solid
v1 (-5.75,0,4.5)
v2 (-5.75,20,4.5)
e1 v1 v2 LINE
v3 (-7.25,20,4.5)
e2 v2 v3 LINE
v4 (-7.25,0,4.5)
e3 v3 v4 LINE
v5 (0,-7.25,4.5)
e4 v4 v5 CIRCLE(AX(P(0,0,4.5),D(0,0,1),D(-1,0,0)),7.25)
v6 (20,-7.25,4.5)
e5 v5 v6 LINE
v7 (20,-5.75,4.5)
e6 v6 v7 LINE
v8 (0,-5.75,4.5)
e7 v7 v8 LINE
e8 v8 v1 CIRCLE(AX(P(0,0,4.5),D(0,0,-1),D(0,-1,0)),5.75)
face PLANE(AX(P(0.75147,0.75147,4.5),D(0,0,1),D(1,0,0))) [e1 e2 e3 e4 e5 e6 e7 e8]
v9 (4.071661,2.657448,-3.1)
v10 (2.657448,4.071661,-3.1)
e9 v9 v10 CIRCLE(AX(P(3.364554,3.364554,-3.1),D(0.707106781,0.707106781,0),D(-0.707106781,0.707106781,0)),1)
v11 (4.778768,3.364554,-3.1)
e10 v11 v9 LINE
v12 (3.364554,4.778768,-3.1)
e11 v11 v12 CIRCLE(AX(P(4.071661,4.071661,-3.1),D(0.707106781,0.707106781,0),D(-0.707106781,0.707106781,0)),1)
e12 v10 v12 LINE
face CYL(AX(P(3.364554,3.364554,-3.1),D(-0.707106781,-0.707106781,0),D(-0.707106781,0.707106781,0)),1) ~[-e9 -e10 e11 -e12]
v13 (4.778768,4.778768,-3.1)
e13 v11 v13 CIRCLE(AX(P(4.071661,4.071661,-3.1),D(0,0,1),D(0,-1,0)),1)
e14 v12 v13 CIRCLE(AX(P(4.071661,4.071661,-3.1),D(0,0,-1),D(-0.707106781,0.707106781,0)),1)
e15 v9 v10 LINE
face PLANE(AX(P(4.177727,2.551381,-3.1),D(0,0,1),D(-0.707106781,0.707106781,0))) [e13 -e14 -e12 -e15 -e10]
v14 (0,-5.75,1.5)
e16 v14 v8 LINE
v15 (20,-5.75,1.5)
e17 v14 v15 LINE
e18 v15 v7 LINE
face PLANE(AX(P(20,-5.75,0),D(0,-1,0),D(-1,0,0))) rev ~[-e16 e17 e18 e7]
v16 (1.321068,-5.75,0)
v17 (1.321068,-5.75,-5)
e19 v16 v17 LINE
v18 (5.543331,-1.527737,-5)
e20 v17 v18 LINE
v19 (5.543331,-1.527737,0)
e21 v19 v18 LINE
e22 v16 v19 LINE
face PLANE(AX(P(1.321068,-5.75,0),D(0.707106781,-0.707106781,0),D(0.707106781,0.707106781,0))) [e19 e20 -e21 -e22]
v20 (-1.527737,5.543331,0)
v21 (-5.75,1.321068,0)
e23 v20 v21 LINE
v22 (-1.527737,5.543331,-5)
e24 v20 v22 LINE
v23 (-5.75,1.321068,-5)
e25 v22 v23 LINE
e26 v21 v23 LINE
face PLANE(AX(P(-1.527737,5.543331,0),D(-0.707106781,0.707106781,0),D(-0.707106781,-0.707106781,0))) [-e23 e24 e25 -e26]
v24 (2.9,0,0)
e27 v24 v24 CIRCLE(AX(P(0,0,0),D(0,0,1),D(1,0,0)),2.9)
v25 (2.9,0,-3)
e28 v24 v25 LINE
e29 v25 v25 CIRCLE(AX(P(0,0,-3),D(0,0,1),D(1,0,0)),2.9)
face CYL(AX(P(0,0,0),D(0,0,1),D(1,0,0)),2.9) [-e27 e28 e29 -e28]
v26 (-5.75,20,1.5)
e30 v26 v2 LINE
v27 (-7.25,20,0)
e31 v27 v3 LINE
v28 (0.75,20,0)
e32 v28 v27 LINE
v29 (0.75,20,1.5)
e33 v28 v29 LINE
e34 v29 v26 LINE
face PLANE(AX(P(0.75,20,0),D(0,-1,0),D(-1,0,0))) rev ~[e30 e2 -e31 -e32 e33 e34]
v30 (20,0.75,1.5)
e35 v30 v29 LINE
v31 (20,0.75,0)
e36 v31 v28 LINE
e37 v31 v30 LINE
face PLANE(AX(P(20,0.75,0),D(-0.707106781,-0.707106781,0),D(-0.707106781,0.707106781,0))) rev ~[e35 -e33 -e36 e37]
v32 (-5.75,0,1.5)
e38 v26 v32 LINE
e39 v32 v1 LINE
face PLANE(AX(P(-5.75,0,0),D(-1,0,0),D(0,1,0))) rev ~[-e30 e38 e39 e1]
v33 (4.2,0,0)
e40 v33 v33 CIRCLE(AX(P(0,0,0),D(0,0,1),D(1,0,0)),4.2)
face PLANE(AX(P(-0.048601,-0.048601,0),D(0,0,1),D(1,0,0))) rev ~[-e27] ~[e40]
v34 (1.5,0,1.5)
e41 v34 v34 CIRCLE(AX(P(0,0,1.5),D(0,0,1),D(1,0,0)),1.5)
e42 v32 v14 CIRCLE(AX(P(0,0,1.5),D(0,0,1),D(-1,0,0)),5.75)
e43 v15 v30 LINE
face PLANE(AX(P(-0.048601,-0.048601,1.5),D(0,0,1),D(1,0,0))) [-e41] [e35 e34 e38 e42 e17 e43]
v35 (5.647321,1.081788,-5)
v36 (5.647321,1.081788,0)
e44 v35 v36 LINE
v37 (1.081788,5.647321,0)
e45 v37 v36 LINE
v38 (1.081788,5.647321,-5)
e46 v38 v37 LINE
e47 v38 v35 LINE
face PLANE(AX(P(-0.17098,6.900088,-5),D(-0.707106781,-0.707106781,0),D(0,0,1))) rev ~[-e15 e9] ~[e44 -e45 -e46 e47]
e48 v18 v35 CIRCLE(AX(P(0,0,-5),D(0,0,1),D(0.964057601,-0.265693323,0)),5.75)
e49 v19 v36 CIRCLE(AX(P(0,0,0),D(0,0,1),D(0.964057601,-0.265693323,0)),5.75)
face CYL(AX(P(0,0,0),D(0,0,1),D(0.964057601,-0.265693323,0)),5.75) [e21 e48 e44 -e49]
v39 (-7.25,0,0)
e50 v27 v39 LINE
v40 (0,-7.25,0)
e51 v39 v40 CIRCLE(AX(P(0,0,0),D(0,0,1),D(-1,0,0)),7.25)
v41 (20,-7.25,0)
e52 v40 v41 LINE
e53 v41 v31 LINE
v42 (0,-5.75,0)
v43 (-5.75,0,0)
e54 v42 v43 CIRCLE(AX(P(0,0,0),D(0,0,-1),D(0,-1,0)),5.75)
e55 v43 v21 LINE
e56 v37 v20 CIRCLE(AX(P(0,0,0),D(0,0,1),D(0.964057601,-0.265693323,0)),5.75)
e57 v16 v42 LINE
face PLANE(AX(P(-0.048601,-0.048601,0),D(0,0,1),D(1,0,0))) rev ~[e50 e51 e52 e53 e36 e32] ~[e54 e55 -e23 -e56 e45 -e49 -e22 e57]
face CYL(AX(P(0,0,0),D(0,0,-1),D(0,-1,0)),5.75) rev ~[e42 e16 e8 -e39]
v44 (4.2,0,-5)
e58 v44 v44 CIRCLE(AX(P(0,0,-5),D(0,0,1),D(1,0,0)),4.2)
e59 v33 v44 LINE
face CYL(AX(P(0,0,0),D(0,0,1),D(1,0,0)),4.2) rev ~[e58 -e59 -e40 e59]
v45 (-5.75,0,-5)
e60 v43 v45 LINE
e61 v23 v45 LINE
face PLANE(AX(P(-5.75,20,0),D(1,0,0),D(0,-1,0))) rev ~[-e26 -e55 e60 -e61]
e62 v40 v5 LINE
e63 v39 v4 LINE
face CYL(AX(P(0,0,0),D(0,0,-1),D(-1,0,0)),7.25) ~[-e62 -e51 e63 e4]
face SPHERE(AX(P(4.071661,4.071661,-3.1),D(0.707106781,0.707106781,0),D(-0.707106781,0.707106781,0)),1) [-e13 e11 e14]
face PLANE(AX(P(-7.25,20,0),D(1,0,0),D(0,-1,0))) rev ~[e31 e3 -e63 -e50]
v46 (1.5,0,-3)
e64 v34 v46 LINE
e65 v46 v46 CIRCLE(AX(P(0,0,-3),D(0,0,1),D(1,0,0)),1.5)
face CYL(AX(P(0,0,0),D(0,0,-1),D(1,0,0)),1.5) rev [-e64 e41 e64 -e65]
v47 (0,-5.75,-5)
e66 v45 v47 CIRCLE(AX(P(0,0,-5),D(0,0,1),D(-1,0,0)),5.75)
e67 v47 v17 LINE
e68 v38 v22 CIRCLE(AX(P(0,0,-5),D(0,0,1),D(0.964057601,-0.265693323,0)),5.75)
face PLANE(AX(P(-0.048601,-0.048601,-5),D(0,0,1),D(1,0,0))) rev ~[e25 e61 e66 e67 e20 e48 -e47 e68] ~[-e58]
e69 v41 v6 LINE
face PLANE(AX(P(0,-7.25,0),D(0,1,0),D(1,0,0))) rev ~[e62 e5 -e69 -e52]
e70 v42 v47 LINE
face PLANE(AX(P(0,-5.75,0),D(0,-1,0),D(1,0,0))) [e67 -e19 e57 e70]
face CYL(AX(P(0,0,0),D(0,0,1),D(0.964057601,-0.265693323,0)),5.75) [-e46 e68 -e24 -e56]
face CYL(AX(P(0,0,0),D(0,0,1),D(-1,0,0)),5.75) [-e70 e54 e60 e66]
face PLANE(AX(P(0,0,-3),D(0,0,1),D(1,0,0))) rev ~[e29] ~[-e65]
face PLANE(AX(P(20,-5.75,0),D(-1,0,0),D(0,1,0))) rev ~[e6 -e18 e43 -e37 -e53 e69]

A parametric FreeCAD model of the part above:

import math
import FreeCAD as App
import Part
import Sketcher
from FreeCAD import Vector
Q = App.Units.Quantity


def edges_at(feature, points):
    """Names of the edges that pass closest to the given points."""
    edges = feature.Shape.Edges
    near = lambda p: min(range(len(edges)), key=lambda i: edges[i].distToShape(Part.Vertex(*p))[0])
    return sorted({f"Edge{near(p) + 1}" for p in points})

doc = App.newDocument("Part")
params = doc.addObject("Spreadsheet::Sheet", "Params")
for row, (alias, value) in enumerate([
    ("sketch1_diameter", "3 mm"),
    ("sketch1_width", "20 mm"),
    ("sketch1_radius", "5.75 mm"),
    ("sketch1_width2", "6.5 mm"),
    ("pad1_length", "1.5 mm"),
    ("sketch2_diameter", "8.4 mm"),
    ("sketch2_radius", "5.75 mm"),
    ("pad2_length", "5 mm"),
    ("sketch3_diameter", "3 mm"),
    ("sketch3_diameter2", "5.8 mm"),
    ("pad3_length", "3 mm"),
    ("sketch4_width", "20 mm"),
    ("sketch4_radius", "5.75 mm"),
    ("sketch4_radius2", "7.25 mm"),
    ("pad4_length", "4.5 mm"),
    ("sketch5_width", "1 mm"),
    ("sketch5_height", "5 mm"),
    ("pocket1_length", "10 mm"),
    ("sketch6_diameter", "2 mm"),
    ("pad5_length", "2 mm"),
    ("fillet_radius", "1 mm"),
    ("pocket2_length", "3 mm"),
], start=1):
    params.set(f"A{row}", alias)
    params.set(f"B{row}", "=" + value)
    params.setAlias(f"B{row}", alias)

body = doc.addObject("PartDesign::Body", "Body")

# Sketch on XY plane
sketch1 = body.newObject("Sketcher::SketchObject", "Sketch")
sketch1.AttachmentSupport = (doc.getObject("XY_Plane"), [""])
sketch1.MapMode = "FlatFace"
sketch1.addGeometry(Part.LineSegment(Vector(0, -5.8, 0), Vector(20, -5.8, 0)), False)
sketch1.addGeometry(Part.LineSegment(Vector(20, -5.8, 0), Vector(20, 0.8, 0)), False)
sketch1.addGeometry(Part.LineSegment(Vector(20, 0.8, 0), Vector(0.8, 20, 0)), False)
sketch1.addGeometry(Part.LineSegment(Vector(0.8, 20, 0), Vector(-5.8, 20, 0)), False)
sketch1.addGeometry(Part.LineSegment(Vector(-5.8, 20, 0), Vector(-5.8, 0, 0)), False)
sketch1.addGeometry(Part.ArcOfCircle(Part.Circle(Vector(0, 0, 0), Vector(0, 0, 1), 5.8), math.radians(180), math.radians(270)), False)
sketch1.addGeometry(Part.Circle(Vector(0, 0, 0), Vector(0, 0, 1), 1.5), False)
sketch1.addConstraint(Sketcher.Constraint("Coincident", 0, 2, 1, 1))
sketch1.addConstraint(Sketcher.Constraint("Coincident", 1, 2, 2, 1))
sketch1.addConstraint(Sketcher.Constraint("Coincident", 2, 2, 3, 1))
sketch1.addConstraint(Sketcher.Constraint("Coincident", 3, 2, 4, 1))
sketch1.addConstraint(Sketcher.Constraint("Tangent", 4, 2, 5, 1))
sketch1.addConstraint(Sketcher.Constraint("Tangent", 5, 2, 0, 1))
sketch1.addConstraint(Sketcher.Constraint("Horizontal", 0))
sketch1.addConstraint(Sketcher.Constraint("Vertical", 1))
sketch1.addConstraint(Sketcher.Constraint("Horizontal", 3))
sketch1.addConstraint(Sketcher.Constraint("Vertical", 4))
sketch1.addConstraint(Sketcher.Constraint("Coincident", 5, 3, -1, 1))
sketch1.addConstraint(Sketcher.Constraint("Coincident", 6, 3, -1, 1))
sketch1.addConstraint(Sketcher.Constraint("Equal", 3, 1))
sketch1.addConstraint(Sketcher.Constraint("Equal", 0, 4))
sketch1.addConstraint(Sketcher.Constraint("Diameter", 6, Q("3 mm")))
sketch1.addConstraint(Sketcher.Constraint("DistanceX", 0, 1, 0, 2, Q("20 mm")))
sketch1.addConstraint(Sketcher.Constraint("Radius", 5, Q("5.75 mm")))
sketch1.addConstraint(Sketcher.Constraint("DistanceX", 3, 2, 3, 1, Q("6.5 mm")))
sketch1.setExpression("Constraints[14]", "Params.sketch1_diameter")
sketch1.setExpression("Constraints[15]", "Params.sketch1_width")
sketch1.setExpression("Constraints[16]", "Params.sketch1_radius")
sketch1.setExpression("Constraints[17]", "Params.sketch1_width2")
pad1 = body.newObject("PartDesign::Pad", "Pad")
pad1.Profile = sketch1
pad1.setExpression("Length", "Params.pad1_length")

# Sketch on XY plane
sketch2 = body.newObject("Sketcher::SketchObject", "Sketch001")
sketch2.AttachmentSupport = (doc.getObject("XY_Plane"), [""])
sketch2.MapMode = "FlatFace"
sketch2.addGeometry(Part.LineSegment(Vector(1.3, -5.8, 0), Vector(5.5, -1.5, 0)), False)
sketch2.addGeometry(Part.ArcOfCircle(Part.Circle(Vector(0, 0, 0), Vector(0, 0, 1), 5.8), math.radians(-15), math.radians(105)), False)
sketch2.addGeometry(Part.LineSegment(Vector(-1.5, 5.5, 0), Vector(-5.8, 1.3, 0)), False)
sketch2.addGeometry(Part.LineSegment(Vector(-5.8, 1.3, 0), Vector(-5.8, 0, 0)), False)
sketch2.addGeometry(Part.ArcOfCircle(Part.Circle(Vector(0, 0, 0), Vector(0, 0, 1), 5.8), math.radians(180), math.radians(270)), False)
sketch2.addGeometry(Part.LineSegment(Vector(0, -5.8, 0), Vector(1.3, -5.8, 0)), False)
sketch2.addGeometry(Part.Circle(Vector(0, 0, 0), Vector(0, 0, 1), 4.2), False)
sketch2.addConstraint(Sketcher.Constraint("Coincident", 0, 2, 1, 1))
sketch2.addConstraint(Sketcher.Constraint("Coincident", 1, 2, 2, 1))
sketch2.addConstraint(Sketcher.Constraint("Coincident", 2, 2, 3, 1))
sketch2.addConstraint(Sketcher.Constraint("Tangent", 3, 2, 4, 1))
sketch2.addConstraint(Sketcher.Constraint("Tangent", 4, 2, 5, 1))
sketch2.addConstraint(Sketcher.Constraint("Coincident", 5, 2, 0, 1))
sketch2.addConstraint(Sketcher.Constraint("Vertical", 3))
sketch2.addConstraint(Sketcher.Constraint("Horizontal", 5))
sketch2.addConstraint(Sketcher.Constraint("Coincident", 1, 3, -1, 1))
sketch2.addConstraint(Sketcher.Constraint("Coincident", 4, 3, -1, 1))
sketch2.addConstraint(Sketcher.Constraint("Coincident", 6, 3, -1, 1))
sketch2.addConstraint(Sketcher.Constraint("Equal", 1, 4))
sketch2.addConstraint(Sketcher.Constraint("Parallel", 0, 2))
sketch2.addConstraint(Sketcher.Constraint("Equal", 5, 3))
sketch2.addConstraint(Sketcher.Constraint("Equal", 0, 2))
sketch2.addConstraint(Sketcher.Constraint("Diameter", 6, Q("8.4 mm")))
sketch2.addConstraint(Sketcher.Constraint("Radius", 1, Q("5.75 mm")))
sketch2.addConstraint(Sketcher.Constraint("DistanceX", 5, 1, 5, 2, Q("1.321068 mm")))
sketch2.setExpression("Constraints[15]", "Params.sketch2_diameter")
sketch2.setExpression("Constraints[16]", "Params.sketch2_radius")
pad2 = body.newObject("PartDesign::Pad", "Pad001")
pad2.Profile = sketch2
pad2.setExpression("Length", "Params.pad2_length")
pad2.Reversed = True

# Sketch on XY plane
sketch3 = body.newObject("Sketcher::SketchObject", "Sketch002")
sketch3.AttachmentSupport = (doc.getObject("XY_Plane"), [""])
sketch3.MapMode = "FlatFace"
sketch3.addGeometry(Part.Circle(Vector(0, 0, 0), Vector(0, 0, 1), 2.9), False)
sketch3.addGeometry(Part.Circle(Vector(0, 0, 0), Vector(0, 0, 1), 1.5), False)
sketch3.addConstraint(Sketcher.Constraint("Coincident", 0, 3, -1, 1))
sketch3.addConstraint(Sketcher.Constraint("Coincident", 1, 3, -1, 1))
sketch3.addConstraint(Sketcher.Constraint("Diameter", 1, Q("3 mm")))
sketch3.addConstraint(Sketcher.Constraint("Diameter", 0, Q("5.8 mm")))
sketch3.setExpression("Constraints[2]", "Params.sketch3_diameter")
sketch3.setExpression("Constraints[3]", "Params.sketch3_diameter2")
pad3 = body.newObject("PartDesign::Pad", "Pad002")
pad3.Profile = sketch3
pad3.setExpression("Length", "Params.pad3_length")
pad3.Reversed = True

# Sketch on XY plane
sketch4 = body.newObject("Sketcher::SketchObject", "Sketch003")
sketch4.AttachmentSupport = (doc.getObject("XY_Plane"), [""])
sketch4.MapMode = "FlatFace"
sketch4.addGeometry(Part.ArcOfCircle(Part.Circle(Vector(0, 0, 0), Vector(0, 0, 1), 5.8), math.radians(180), math.radians(270)), False)
sketch4.addGeometry(Part.LineSegment(Vector(-5.8, 0, 0), Vector(-5.8, 20, 0)), False)
sketch4.addGeometry(Part.LineSegment(Vector(-5.8, 20, 0), Vector(-7.2, 20, 0)), False)
sketch4.addGeometry(Part.LineSegment(Vector(-7.2, 20, 0), Vector(-7.2, 0, 0)), False)
sketch4.addGeometry(Part.ArcOfCircle(Part.Circle(Vector(0, 0, 0), Vector(0, 0, 1), 7.2), math.radians(180), math.radians(270)), False)
sketch4.addGeometry(Part.LineSegment(Vector(0, -7.2, 0), Vector(20, -7.2, 0)), False)
sketch4.addGeometry(Part.LineSegment(Vector(20, -7.2, 0), Vector(20, -5.8, 0)), False)
sketch4.addGeometry(Part.LineSegment(Vector(20, -5.8, 0), Vector(0, -5.8, 0)), False)
sketch4.addConstraint(Sketcher.Constraint("Tangent", 0, 1, 1, 1))
sketch4.addConstraint(Sketcher.Constraint("Coincident", 1, 2, 2, 1))
sketch4.addConstraint(Sketcher.Constraint("Coincident", 2, 2, 3, 1))
sketch4.addConstraint(Sketcher.Constraint("Tangent", 3, 2, 4, 1))
sketch4.addConstraint(Sketcher.Constraint("Tangent", 4, 2, 5, 1))
sketch4.addConstraint(Sketcher.Constraint("Coincident", 5, 2, 6, 1))
sketch4.addConstraint(Sketcher.Constraint("Coincident", 6, 2, 7, 1))
sketch4.addConstraint(Sketcher.Constraint("Tangent", 7, 2, 0, 2))
sketch4.addConstraint(Sketcher.Constraint("Vertical", 1))
sketch4.addConstraint(Sketcher.Constraint("Horizontal", 2))
sketch4.addConstraint(Sketcher.Constraint("Vertical", 3))
sketch4.addConstraint(Sketcher.Constraint("Horizontal", 5))
sketch4.addConstraint(Sketcher.Constraint("Vertical", 6))
sketch4.addConstraint(Sketcher.Constraint("Horizontal", 7))
sketch4.addConstraint(Sketcher.Constraint("Coincident", 0, 3, -1, 1))
sketch4.addConstraint(Sketcher.Constraint("Coincident", 4, 3, -1, 1))
sketch4.addConstraint(Sketcher.Constraint("Equal", 7, 1))
sketch4.addConstraint(Sketcher.Constraint("DistanceX", 5, 1, 5, 2, Q("20 mm")))
sketch4.addConstraint(Sketcher.Constraint("Radius", 0, Q("5.75 mm")))
sketch4.addConstraint(Sketcher.Constraint("Radius", 4, Q("7.25 mm")))
sketch4.setExpression("Constraints[17]", "Params.sketch4_width")
sketch4.setExpression("Constraints[18]", "Params.sketch4_radius")
sketch4.setExpression("Constraints[19]", "Params.sketch4_radius2")
pad4 = body.newObject("PartDesign::Pad", "Pad003")
pad4.Profile = sketch4
pad4.setExpression("Length", "Params.pad4_length")

# Sketch on an angled plane
sketch5 = body.newObject("Sketcher::SketchObject", "Sketch004")
sketch5.Placement = App.Placement(Vector(-3.535534, 3.535534, 0), App.Rotation(Vector(-0.707106781, -0.707106781, 0), Vector(0, 0, 0.999999999), Vector(-0.707106781, 0.707106781, 0), "ZXY"))
sketch5.addGeometry(Part.LineSegment(Vector(-5.8, 0, 0), Vector(-5.8, -5, 0)), False)
sketch5.addGeometry(Part.LineSegment(Vector(-5.8, -5, 0), Vector(-4.8, -5, 0)), False)
sketch5.addGeometry(Part.LineSegment(Vector(-4.8, -5, 0), Vector(-4.8, 0, 0)), False)
sketch5.addGeometry(Part.LineSegment(Vector(-4.8, 0, 0), Vector(-5.8, 0, 0)), False)
sketch5.addConstraint(Sketcher.Constraint("Coincident", 0, 2, 1, 1))
sketch5.addConstraint(Sketcher.Constraint("Coincident", 1, 2, 2, 1))
sketch5.addConstraint(Sketcher.Constraint("Coincident", 2, 2, 3, 1))
sketch5.addConstraint(Sketcher.Constraint("Coincident", 3, 2, 0, 1))
sketch5.addConstraint(Sketcher.Constraint("Vertical", 0))
sketch5.addConstraint(Sketcher.Constraint("Horizontal", 1))
sketch5.addConstraint(Sketcher.Constraint("Vertical", 2))
sketch5.addConstraint(Sketcher.Constraint("Horizontal", 3))
sketch5.addConstraint(Sketcher.Constraint("PointOnObject", 2, 2, -1))
sketch5.addConstraint(Sketcher.Constraint("DistanceX", 1, 1, 1, 2, Q("1 mm")))
sketch5.addConstraint(Sketcher.Constraint("DistanceY", 0, 2, 0, 1, Q("5 mm")))
sketch5.addConstraint(Sketcher.Constraint("DistanceX", 0, 2, -1, 1, Q("5.758198 mm")))
sketch5.setExpression("Constraints[9]", "Params.sketch5_width")
sketch5.setExpression("Constraints[10]", "Params.sketch5_height")
pocket1 = body.newObject("PartDesign::Pocket", "Pocket")
pocket1.Profile = sketch5
pocket1.setExpression("Length", "Params.pocket1_length")

# Sketch on an angled plane
sketch6 = body.newObject("Sketcher::SketchObject", "Sketch005")
sketch6.Placement = App.Placement(Vector(3.364554, 3.364554, 0), App.Rotation(Vector(-0.707106781, 0.707106781, 0), Vector(0, 0, 0.999999999), Vector(0.707106781, 0.707106781, 0), "ZXY"))
sketch6.addGeometry(Part.Circle(Vector(0, -3.1, 0), Vector(0, 0, 1), 1), False)
sketch6.addConstraint(Sketcher.Constraint("PointOnObject", 0, 3, -2))
sketch6.addConstraint(Sketcher.Constraint("Diameter", 0, Q("2 mm")))
sketch6.addConstraint(Sketcher.Constraint("DistanceY", 0, 3, -1, 1, Q("3.1 mm")))
sketch6.setExpression("Constraints[1]", "Params.sketch6_diameter")
pad5 = body.newObject("PartDesign::Pad", "Pad004")
pad5.Profile = sketch6
pad5.setExpression("Length", "Params.pad5_length")
doc.recompute()

fillet = body.newObject("PartDesign::Fillet", "Fillet")
fillet.Base = (pad5, edges_at(pad5, [(5.486, 4.072, -3.1)]))
fillet.setExpression("Radius", "Params.fillet_radius")

# Sketch on an angled plane
sketch7 = body.newObject("Sketcher::SketchObject", "Sketch006")
sketch7.Placement = App.Placement(Vector(3.364554, 3.364554, 0), App.Rotation(Vector(-0.707106781, 0.707106781, 0), Vector(0, 0, 0.999999999), Vector(0.707106781, 0.707106781, 0), "ZXY"))
sketch7.addGeometry(Part.LineSegment(Vector(-1.2, -1.9, 0), Vector(-1.2, -3.1, 0)), False)
sketch7.addGeometry(Part.LineSegment(Vector(-1.2, -3.1, 0), Vector(1.1, -3.1, 0)), False)
sketch7.addGeometry(Part.LineSegment(Vector(1.1, -3.1, 0), Vector(1.1, -1.9, 0)), False)
sketch7.addGeometry(Part.LineSegment(Vector(1.1, -1.9, 0), Vector(-1.2, -1.9, 0)), False)
sketch7.addConstraint(Sketcher.Constraint("Coincident", 0, 2, 1, 1))
sketch7.addConstraint(Sketcher.Constraint("Coincident", 1, 2, 2, 1))
sketch7.addConstraint(Sketcher.Constraint("Coincident", 2, 2, 3, 1))
sketch7.addConstraint(Sketcher.Constraint("Coincident", 3, 2, 0, 1))
sketch7.addConstraint(Sketcher.Constraint("Vertical", 0))
sketch7.addConstraint(Sketcher.Constraint("Horizontal", 1))
sketch7.addConstraint(Sketcher.Constraint("Vertical", 2))
sketch7.addConstraint(Sketcher.Constraint("Horizontal", 3))
sketch7.addConstraint(Sketcher.Constraint("DistanceY", 0, 2, -1, 1, Q("3.1 mm")))
sketch7.addConstraint(Sketcher.Constraint("DistanceX", 0, 2, -1, 1, Q("1.15 mm")))
sketch7.addConstraint(Sketcher.Constraint("DistanceX", 1, 1, 1, 2, Q("2.228093 mm")))
sketch7.addConstraint(Sketcher.Constraint("DistanceY", 0, 2, 0, 1, Q("1.195517 mm")))
pocket2 = body.newObject("PartDesign::Pocket", "Pocket001")
pocket2.Profile = sketch7
pocket2.setExpression("Length", "Params.pocket2_length")
pocket2.Reversed = True

doc.recompute()
